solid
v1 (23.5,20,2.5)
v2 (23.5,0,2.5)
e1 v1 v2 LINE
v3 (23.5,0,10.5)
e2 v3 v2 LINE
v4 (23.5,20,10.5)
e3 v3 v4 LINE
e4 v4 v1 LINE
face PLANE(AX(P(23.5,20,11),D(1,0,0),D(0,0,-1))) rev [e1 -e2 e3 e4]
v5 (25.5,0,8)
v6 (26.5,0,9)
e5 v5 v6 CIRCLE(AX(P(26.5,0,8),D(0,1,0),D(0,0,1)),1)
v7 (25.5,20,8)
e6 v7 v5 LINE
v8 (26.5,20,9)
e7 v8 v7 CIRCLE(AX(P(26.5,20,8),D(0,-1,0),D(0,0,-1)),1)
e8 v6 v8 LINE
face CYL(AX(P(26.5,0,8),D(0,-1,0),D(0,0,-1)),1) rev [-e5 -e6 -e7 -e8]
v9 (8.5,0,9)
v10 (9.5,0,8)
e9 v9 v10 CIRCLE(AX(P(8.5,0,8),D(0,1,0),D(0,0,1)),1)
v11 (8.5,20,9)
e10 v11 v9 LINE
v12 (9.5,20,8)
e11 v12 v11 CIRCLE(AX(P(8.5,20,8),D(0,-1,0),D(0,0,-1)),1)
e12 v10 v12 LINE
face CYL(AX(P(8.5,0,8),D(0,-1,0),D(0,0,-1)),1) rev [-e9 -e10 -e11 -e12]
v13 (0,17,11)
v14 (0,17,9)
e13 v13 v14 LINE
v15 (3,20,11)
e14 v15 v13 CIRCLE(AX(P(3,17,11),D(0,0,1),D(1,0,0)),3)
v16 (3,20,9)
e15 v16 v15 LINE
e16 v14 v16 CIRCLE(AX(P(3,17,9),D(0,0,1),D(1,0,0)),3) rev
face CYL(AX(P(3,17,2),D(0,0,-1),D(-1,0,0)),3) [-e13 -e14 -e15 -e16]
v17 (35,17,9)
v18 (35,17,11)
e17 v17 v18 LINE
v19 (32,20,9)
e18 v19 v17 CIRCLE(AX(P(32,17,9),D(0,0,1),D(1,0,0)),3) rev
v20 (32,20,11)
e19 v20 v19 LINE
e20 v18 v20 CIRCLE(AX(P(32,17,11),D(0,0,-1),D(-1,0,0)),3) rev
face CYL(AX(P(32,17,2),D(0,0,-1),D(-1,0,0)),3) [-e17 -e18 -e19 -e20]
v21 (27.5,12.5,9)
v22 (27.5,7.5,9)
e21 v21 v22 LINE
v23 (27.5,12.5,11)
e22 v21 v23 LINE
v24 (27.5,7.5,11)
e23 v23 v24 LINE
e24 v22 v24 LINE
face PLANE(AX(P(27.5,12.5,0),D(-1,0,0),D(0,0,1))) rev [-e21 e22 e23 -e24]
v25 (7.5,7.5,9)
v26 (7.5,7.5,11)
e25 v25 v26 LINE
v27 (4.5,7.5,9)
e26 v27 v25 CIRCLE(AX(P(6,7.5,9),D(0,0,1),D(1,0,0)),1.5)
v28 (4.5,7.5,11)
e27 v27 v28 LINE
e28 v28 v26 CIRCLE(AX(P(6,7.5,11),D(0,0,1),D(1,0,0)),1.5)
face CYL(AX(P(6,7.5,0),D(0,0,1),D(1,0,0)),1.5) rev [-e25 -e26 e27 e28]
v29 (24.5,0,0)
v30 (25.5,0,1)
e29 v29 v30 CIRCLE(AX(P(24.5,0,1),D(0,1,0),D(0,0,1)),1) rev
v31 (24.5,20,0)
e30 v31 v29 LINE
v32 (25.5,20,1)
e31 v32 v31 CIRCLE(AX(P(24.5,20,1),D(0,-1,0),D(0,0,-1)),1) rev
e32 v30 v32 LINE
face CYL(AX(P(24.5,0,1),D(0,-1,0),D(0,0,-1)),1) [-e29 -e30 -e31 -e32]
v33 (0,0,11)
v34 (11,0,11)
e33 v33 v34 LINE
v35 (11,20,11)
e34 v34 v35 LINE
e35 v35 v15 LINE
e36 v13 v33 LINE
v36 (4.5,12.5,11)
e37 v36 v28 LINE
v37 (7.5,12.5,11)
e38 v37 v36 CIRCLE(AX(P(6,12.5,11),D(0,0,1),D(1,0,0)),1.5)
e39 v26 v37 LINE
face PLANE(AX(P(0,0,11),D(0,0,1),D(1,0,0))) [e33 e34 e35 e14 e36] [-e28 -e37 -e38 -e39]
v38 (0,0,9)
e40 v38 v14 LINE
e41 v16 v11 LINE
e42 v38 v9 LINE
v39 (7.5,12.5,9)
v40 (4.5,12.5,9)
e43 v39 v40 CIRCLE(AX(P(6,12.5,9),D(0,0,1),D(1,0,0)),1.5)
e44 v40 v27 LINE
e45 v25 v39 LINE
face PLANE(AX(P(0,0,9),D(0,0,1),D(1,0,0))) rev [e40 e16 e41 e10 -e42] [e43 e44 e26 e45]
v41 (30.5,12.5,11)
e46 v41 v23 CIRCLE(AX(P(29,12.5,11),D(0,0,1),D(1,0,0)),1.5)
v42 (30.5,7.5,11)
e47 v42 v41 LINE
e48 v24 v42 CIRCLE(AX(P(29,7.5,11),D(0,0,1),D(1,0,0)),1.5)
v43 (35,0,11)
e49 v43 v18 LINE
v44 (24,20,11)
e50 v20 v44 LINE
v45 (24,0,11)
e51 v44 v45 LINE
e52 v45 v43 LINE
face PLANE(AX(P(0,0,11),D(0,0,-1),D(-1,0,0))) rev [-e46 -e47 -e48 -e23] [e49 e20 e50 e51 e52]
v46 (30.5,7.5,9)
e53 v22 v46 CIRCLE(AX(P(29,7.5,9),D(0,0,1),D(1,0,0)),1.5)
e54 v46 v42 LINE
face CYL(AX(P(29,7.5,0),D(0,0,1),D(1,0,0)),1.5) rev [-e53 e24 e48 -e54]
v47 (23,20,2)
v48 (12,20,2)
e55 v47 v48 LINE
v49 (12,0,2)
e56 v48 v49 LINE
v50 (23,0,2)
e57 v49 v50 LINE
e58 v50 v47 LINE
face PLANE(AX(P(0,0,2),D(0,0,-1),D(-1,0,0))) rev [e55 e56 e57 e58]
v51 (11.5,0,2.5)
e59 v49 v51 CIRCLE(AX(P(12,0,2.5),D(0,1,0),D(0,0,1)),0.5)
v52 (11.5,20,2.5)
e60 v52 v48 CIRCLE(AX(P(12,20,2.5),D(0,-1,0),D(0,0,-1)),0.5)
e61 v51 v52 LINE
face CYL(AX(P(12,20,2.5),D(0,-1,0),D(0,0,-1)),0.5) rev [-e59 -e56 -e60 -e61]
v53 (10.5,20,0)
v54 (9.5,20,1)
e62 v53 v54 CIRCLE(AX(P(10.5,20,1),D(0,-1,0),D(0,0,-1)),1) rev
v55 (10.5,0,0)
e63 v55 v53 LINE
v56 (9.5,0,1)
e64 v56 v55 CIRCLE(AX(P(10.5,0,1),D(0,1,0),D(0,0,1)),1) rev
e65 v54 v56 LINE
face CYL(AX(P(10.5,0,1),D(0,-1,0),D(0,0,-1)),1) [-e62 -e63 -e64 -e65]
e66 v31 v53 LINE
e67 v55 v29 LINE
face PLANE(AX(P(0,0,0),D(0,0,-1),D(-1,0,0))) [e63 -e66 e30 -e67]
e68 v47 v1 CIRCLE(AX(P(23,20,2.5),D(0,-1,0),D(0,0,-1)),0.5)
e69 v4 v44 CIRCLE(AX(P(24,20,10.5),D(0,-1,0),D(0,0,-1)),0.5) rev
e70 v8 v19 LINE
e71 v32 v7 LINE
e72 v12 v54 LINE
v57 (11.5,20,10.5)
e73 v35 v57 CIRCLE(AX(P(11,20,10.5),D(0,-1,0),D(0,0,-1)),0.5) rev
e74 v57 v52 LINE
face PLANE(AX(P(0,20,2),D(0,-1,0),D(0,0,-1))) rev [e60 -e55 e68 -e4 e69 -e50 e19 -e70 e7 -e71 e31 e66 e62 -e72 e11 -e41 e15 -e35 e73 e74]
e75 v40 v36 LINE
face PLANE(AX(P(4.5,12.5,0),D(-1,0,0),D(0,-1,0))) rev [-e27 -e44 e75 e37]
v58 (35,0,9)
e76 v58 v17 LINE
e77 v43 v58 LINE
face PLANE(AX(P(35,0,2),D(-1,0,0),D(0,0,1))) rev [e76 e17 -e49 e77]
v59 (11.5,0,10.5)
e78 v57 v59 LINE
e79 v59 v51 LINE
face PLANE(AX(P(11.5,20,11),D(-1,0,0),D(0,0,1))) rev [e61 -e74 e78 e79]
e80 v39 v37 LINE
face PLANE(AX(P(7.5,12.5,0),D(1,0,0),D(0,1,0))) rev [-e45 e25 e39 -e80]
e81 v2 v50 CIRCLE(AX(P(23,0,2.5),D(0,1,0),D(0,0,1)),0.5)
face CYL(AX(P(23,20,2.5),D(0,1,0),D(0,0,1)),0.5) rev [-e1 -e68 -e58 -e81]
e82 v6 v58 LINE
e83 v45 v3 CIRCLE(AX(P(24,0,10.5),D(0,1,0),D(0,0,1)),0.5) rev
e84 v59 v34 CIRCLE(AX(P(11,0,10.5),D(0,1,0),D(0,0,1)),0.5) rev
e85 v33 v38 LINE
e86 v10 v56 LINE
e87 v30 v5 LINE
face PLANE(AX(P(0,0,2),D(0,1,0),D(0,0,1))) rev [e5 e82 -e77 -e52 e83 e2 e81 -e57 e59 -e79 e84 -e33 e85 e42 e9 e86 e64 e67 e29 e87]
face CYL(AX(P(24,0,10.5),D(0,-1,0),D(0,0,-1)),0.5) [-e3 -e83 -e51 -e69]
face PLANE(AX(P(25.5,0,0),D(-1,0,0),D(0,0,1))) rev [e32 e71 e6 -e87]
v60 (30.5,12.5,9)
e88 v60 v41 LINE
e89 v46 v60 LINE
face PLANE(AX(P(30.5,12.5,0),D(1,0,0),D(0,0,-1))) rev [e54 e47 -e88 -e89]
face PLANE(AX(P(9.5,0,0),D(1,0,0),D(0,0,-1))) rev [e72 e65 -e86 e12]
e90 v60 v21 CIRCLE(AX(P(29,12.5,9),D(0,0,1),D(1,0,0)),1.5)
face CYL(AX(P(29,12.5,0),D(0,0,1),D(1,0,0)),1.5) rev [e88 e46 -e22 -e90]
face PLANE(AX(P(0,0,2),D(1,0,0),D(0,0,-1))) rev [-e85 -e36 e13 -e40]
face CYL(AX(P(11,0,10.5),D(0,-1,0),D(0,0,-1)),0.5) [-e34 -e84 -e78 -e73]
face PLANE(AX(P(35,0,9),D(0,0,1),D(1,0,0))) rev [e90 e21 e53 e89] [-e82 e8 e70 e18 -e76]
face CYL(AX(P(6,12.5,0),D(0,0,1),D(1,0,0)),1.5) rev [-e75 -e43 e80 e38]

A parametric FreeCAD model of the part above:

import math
import FreeCAD as App
import Part
import Sketcher
from FreeCAD import Vector
Q = App.Units.Quantity


def edges_at(feature, points):
    """Names of the edges that pass closest to the given points."""
    edges = feature.Shape.Edges
    near = lambda p: min(range(len(edges)), key=lambda i: edges[i].distToShape(Part.Vertex(*p))[0])
    return sorted({f"Edge{near(p) + 1}" for p in points})


def add_polygon(sketch, points):
    """Adds a closed chain of lines whose ends are joined by coincident constraints."""
    first, n = sketch.GeometryCount, len(points)
    for a, b in zip(points, points[1:] + points[:1]):
        sketch.addGeometry(Part.LineSegment(App.Vector(*a, 0), App.Vector(*b, 0)), False)
    for i in range(n):
        sketch.addConstraint(Sketcher.Constraint("Coincident", first + i, 2, first + (i + 1) % n, 1))

doc = App.newDocument("Part")
body = doc.addObject("PartDesign::Body", "Body")

# Sketch on XY plane
sketch1 = body.newObject("Sketcher::SketchObject", "Sketch")
sketch1.AttachmentSupport = (doc.getObject("XY_Plane"), [""])
sketch1.MapMode = "FlatFace"
add_polygon(sketch1, [(0, 20), (0, 0), (35, 0), (35, 20)])  # lines 0-3
sketch1.addConstraint(Sketcher.Constraint("Vertical", 0))
sketch1.addConstraint(Sketcher.Constraint("Horizontal", 1))
sketch1.addConstraint(Sketcher.Constraint("Vertical", 2))
sketch1.addConstraint(Sketcher.Constraint("Horizontal", 3))
sketch1.addConstraint(Sketcher.Constraint("Coincident", 0, 2, -1, 1))
sketch1.addConstraint(Sketcher.Constraint("DistanceX", 1, 1, 1, 2, Q("35 mm")))
sketch1.addConstraint(Sketcher.Constraint("DistanceY", 0, 2, 0, 1, Q("20 mm")))
pad1 = body.newObject("PartDesign::Pad", "Pad")
pad1.Profile = sketch1
pad1.Length = 2

# Sketch on XY plane
sketch2 = body.newObject("Sketcher::SketchObject", "Sketch001")
sketch2.AttachmentSupport = (doc.getObject("XY_Plane"), [""])
sketch2.MapMode = "FlatFace"
sketch2.AttachmentOffset = App.Placement(Vector(0, 0, 2), App.Rotation())
add_polygon(sketch2, [(0, 20), (0, 0), (11.5, 0), (11.5, 20)])  # lines 0-3
add_polygon(sketch2, [(23.5, 20), (23.5, 0), (35, 0), (35, 20)])  # lines 4-7
sketch2.addConstraint(Sketcher.Constraint("Vertical", 0))
sketch2.addConstraint(Sketcher.Constraint("Horizontal", 1))
sketch2.addConstraint(Sketcher.Constraint("Vertical", 2))
sketch2.addConstraint(Sketcher.Constraint("Horizontal", 3))
sketch2.addConstraint(Sketcher.Constraint("Vertical", 4))
sketch2.addConstraint(Sketcher.Constraint("Horizontal", 5))
sketch2.addConstraint(Sketcher.Constraint("Vertical", 6))
sketch2.addConstraint(Sketcher.Constraint("Horizontal", 7))
sketch2.addConstraint(Sketcher.Constraint("Coincident", 0, 2, -1, 1))
sketch2.addConstraint(Sketcher.Constraint("PointOnObject", 4, 2, -1))
sketch2.addConstraint(Sketcher.Constraint("Horizontal", 3, 2, 6, 2))
sketch2.addConstraint(Sketcher.Constraint("Equal", 3, 5))
sketch2.addConstraint(Sketcher.Constraint("DistanceY", 0, 2, 0, 1, Q("20 mm")))
sketch2.addConstraint(Sketcher.Constraint("DistanceX", 1, 1, 1, 2, Q("11.5 mm")))
sketch2.addConstraint(Sketcher.Constraint("DistanceX", -1, 1, 5, 2, Q("35 mm")))
pad2 = body.newObject("PartDesign::Pad", "Pad001")
pad2.Profile = sketch2
pad2.Length = 9

# Sketch on XZ plane
sketch3 = body.newObject("Sketcher::SketchObject", "Sketch002")
sketch3.AttachmentSupport = (doc.getObject("XZ_Plane"), [""])
sketch3.MapMode = "FlatFace"
sketch3.AttachmentOffset = App.Placement(Vector(0, 0, -20), App.Rotation())
add_polygon(sketch3, [(0, 0), (0, 9), (9.5, 9), (9.5, 0)])  # lines 0-3
add_polygon(sketch3, [(25.5, 0), (25.5, 9), (35, 9), (35, 0)])  # lines 4-7
sketch3.addConstraint(Sketcher.Constraint("Vertical", 0))
sketch3.addConstraint(Sketcher.Constraint("Horizontal", 1))
sketch3.addConstraint(Sketcher.Constraint("Vertical", 2))
sketch3.addConstraint(Sketcher.Constraint("Horizontal", 3))
sketch3.addConstraint(Sketcher.Constraint("Vertical", 4))
sketch3.addConstraint(Sketcher.Constraint("Horizontal", 5))
sketch3.addConstraint(Sketcher.Constraint("Vertical", 6))
sketch3.addConstraint(Sketcher.Constraint("Horizontal", 7))
sketch3.addConstraint(Sketcher.Constraint("Coincident", 3, 2, -1, 1))
sketch3.addConstraint(Sketcher.Constraint("PointOnObject", 6, 2, -1))
sketch3.addConstraint(Sketcher.Constraint("Horizontal", 1, 2, 4, 2))
sketch3.addConstraint(Sketcher.Constraint("Equal", 3, 5))
sketch3.addConstraint(Sketcher.Constraint("DistanceY", 0, 1, 0, 2, Q("9 mm")))
sketch3.addConstraint(Sketcher.Constraint("DistanceX", 1, 1, 1, 2, Q("9.5 mm")))
sketch3.addConstraint(Sketcher.Constraint("DistanceX", -1, 1, 5, 2, Q("35 mm")))
pocket1 = body.newObject("PartDesign::Pocket", "Pocket")
pocket1.Profile = sketch3
pocket1.Type = "ThroughAll"
pocket1.Reversed = True
doc.recompute()

fillet = body.newObject("PartDesign::Fillet", "Fillet")
fillet.Base = (pocket1, edges_at(pocket1, [
    (9.5, 10, 0),
    (9.5, 10, 9),
    (25.5, 10, 9),
    (25.5, 10, 0),
]))
fillet.Radius = 1
doc.recompute()

fillet2 = body.newObject("PartDesign::Fillet", "Fillet001")
fillet2.Base = (fillet, edges_at(fillet, [
    (11.5, 10, 2),
    (11.5, 10, 11),
    (23.5, 10, 2),
    (23.5, 10, 11),
]))
fillet2.Radius = 0.5

# Sketch on XY plane
sketch4 = body.newObject("Sketcher::SketchObject", "Sketch003")
sketch4.AttachmentSupport = (doc.getObject("XY_Plane"), [""])
sketch4.MapMode = "FlatFace"
sketch4.AttachmentOffset = App.Placement(Vector(0, 0, 11), App.Rotation())
sketch4.addGeometry(Part.LineSegment(Vector(7.5, 7.5, 0), Vector(7.5, 12.5, 0)), False)
sketch4.addGeometry(Part.ArcOfCircle(Part.Circle(Vector(6, 12.5, 0), Vector(0, 0, 1), 1.5), math.radians(0), math.radians(180)), False)
sketch4.addGeometry(Part.LineSegment(Vector(4.5, 12.5, 0), Vector(4.5, 7.5, 0)), False)
sketch4.addGeometry(Part.ArcOfCircle(Part.Circle(Vector(6, 7.5, 0), Vector(0, 0, 1), 1.5), math.radians(180), math.radians(360)), False)
sketch4.addGeometry(Part.LineSegment(Vector(30.5, 7.5, 0), Vector(30.5, 12.5, 0)), False)
sketch4.addGeometry(Part.ArcOfCircle(Part.Circle(Vector(29, 12.5, 0), Vector(0, 0, 1), 1.5), math.radians(0), math.radians(180)), False)
sketch4.addGeometry(Part.LineSegment(Vector(27.5, 12.5, 0), Vector(27.5, 7.5, 0)), False)
sketch4.addGeometry(Part.ArcOfCircle(Part.Circle(Vector(29, 7.5, 0), Vector(0, 0, 1), 1.5), math.radians(180), math.radians(360)), False)
sketch4.addConstraint(Sketcher.Constraint("Tangent", 0, 2, 1, 1))
sketch4.addConstraint(Sketcher.Constraint("Tangent", 1, 2, 2, 1))
sketch4.addConstraint(Sketcher.Constraint("Tangent", 2, 2, 3, 1))
sketch4.addConstraint(Sketcher.Constraint("Tangent", 3, 2, 0, 1))
sketch4.addConstraint(Sketcher.Constraint("Tangent", 4, 2, 5, 1))
sketch4.addConstraint(Sketcher.Constraint("Tangent", 5, 2, 6, 1))
sketch4.addConstraint(Sketcher.Constraint("Tangent", 6, 2, 7, 1))
sketch4.addConstraint(Sketcher.Constraint("Tangent", 7, 2, 4, 1))
sketch4.addConstraint(Sketcher.Constraint("Vertical", 0))
sketch4.addConstraint(Sketcher.Constraint("Vertical", 2))
sketch4.addConstraint(Sketcher.Constraint("Vertical", 4))
sketch4.addConstraint(Sketcher.Constraint("Vertical", 6))
sketch4.addConstraint(Sketcher.Constraint("Equal", 3, 5))
sketch4.addConstraint(Sketcher.Constraint("Horizontal", 1, 3, 5, 3))
sketch4.addConstraint(Sketcher.Constraint("Horizontal", 3, 3, 7, 3))
sketch4.addConstraint(Sketcher.Constraint("Radius", 1, Q("1.5 mm")))
sketch4.addConstraint(Sketcher.Constraint("DistanceY", 0, 1, 0, 2, Q("5 mm")))
sketch4.addConstraint(Sketcher.Constraint("DistanceX", -1, 1, 1, 3, Q("6 mm")))
sketch4.addConstraint(Sketcher.Constraint("DistanceX", -1, 1, 5, 3, Q("29 mm")))
sketch4.addConstraint(Sketcher.Constraint("DistanceY", -1, 1, 1, 3, Q("12.5 mm")))
pocket2 = body.newObject("PartDesign::Pocket", "Pocket001")
pocket2.Profile = sketch4
pocket2.Type = "ThroughAll"
doc.recompute()

fillet3 = body.newObject("PartDesign::Fillet", "Fillet002")
fillet3.Base = (pocket2, edges_at(pocket2, [(0, 20, 10), (35, 20, 10)]))
fillet3.Radius = 3

doc.recompute()
